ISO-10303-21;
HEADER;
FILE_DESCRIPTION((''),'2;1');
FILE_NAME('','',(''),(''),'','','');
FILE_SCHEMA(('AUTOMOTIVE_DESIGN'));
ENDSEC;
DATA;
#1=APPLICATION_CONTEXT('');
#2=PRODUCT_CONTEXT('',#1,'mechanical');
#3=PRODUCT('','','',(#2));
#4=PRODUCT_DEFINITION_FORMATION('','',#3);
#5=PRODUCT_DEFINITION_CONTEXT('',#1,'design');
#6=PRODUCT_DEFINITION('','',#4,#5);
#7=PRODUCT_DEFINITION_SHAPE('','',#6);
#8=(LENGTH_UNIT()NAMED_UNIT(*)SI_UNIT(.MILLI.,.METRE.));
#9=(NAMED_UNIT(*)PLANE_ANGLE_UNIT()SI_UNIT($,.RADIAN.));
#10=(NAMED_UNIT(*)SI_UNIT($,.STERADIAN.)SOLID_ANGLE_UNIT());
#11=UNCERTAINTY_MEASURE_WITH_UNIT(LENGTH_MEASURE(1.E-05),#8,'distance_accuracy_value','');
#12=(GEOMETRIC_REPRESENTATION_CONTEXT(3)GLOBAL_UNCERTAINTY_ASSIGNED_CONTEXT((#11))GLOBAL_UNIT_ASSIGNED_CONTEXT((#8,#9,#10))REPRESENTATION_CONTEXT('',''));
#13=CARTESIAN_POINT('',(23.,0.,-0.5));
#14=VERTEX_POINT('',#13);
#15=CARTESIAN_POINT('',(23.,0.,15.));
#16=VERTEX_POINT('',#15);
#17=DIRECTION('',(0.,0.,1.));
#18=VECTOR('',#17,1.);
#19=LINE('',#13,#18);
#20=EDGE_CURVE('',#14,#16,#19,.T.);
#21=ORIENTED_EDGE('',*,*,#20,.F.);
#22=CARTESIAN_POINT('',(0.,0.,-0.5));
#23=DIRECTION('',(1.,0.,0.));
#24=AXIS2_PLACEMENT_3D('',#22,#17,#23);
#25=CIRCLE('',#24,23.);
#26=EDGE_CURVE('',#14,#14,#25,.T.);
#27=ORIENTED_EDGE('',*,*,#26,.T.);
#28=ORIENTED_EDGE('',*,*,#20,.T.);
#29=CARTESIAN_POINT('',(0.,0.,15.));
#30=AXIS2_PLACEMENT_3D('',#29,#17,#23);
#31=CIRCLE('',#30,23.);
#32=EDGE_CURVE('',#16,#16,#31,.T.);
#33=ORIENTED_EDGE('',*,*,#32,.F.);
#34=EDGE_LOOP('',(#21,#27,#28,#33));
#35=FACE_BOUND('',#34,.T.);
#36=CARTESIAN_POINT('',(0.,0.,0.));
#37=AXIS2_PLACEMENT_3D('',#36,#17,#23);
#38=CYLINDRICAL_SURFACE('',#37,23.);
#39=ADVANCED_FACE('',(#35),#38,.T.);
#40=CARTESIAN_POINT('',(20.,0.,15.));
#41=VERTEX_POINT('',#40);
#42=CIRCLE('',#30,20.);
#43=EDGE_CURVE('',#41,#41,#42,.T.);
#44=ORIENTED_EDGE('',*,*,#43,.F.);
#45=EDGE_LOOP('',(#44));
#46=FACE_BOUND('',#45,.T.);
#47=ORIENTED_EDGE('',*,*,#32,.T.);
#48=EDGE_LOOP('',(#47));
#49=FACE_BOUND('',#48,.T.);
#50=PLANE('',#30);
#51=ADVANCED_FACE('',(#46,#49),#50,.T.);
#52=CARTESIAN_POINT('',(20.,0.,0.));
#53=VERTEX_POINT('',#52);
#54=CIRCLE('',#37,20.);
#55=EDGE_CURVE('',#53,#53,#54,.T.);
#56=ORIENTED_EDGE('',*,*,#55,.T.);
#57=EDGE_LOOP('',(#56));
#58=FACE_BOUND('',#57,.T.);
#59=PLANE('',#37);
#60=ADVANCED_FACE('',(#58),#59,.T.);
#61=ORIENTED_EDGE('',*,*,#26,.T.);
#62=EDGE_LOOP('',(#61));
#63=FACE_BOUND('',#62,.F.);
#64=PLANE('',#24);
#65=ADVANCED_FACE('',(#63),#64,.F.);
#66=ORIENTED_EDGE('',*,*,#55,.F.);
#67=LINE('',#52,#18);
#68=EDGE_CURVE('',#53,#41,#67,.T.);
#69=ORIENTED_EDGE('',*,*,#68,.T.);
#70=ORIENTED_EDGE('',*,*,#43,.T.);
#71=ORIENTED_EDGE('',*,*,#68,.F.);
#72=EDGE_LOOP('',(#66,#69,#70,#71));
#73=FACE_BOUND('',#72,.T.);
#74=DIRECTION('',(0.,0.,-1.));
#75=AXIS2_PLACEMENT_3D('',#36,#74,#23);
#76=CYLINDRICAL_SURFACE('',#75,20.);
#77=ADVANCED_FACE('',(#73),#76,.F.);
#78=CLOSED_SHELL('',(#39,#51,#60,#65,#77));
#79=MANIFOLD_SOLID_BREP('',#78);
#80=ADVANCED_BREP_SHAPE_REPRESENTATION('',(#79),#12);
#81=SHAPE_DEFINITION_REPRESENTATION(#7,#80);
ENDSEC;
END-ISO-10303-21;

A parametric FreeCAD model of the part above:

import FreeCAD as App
import Part
import Sketcher

doc = App.newDocument("Part")
params = doc.addObject("Spreadsheet::Sheet", "Params")
for row, (alias, value) in enumerate([
    ("sketch1_diameter", "46 mm"),
    ("sketch1_diameter2", "40 mm"),
    ("pad1_length", "15 mm"),
    ("sketch2_diameter", "46 mm"),
    ("pad2_length", "0.5 mm"),
], start=1):
    params.set(f"A{row}", alias)
    params.set(f"B{row}", "=" + value)
    params.setAlias(f"B{row}", alias)

body = doc.addObject("PartDesign::Body", "Body")

sketch1 = body.newObject("Sketcher::SketchObject", "Sketch")
sketch1.AttachmentSupport = (doc.getObject("XY_Plane"), [""])
sketch1.MapMode = "FlatFace"
sketch1.addGeometry([
    Part.Circle(App.Vector(0, 0, 0), App.Vector(0, 0, 1), 23),
    Part.Circle(App.Vector(0, 0, 0), App.Vector(0, 0, 1), 20),
], False)
sketch1.addConstraint([
    Sketcher.Constraint("Coincident", 0, 3, -1, 1),
    Sketcher.Constraint("Coincident", 1, 3, -1, 1),
    Sketcher.Constraint("Diameter", 0, 46.0),
    Sketcher.Constraint("Diameter", 1, 40.0),
])
sketch1.setExpression("Constraints[2]", "Params.sketch1_diameter")
sketch1.setExpression("Constraints[3]", "Params.sketch1_diameter2")
pad1 = body.newObject("PartDesign::Pad", "Pad")
pad1.Profile = sketch1
pad1.setExpression("Length", "Params.pad1_length")

sketch2 = body.newObject("Sketcher::SketchObject", "Sketch001")
sketch2.AttachmentSupport = (doc.getObject("XY_Plane"), [""])
sketch2.MapMode = "FlatFace"
sketch2.addGeometry(Part.Circle(App.Vector(0, 0, 0), App.Vector(0, 0, 1), 23), False)
sketch2.addConstraint([
    Sketcher.Constraint("Coincident", 0, 3, -1, 1),
    Sketcher.Constraint("Diameter", 0, 46.0),
])
sketch2.setExpression("Constraints[1]", "Params.sketch2_diameter")
pad2 = body.newObject("PartDesign::Pad", "Pad001")
pad2.Profile = sketch2
pad2.setExpression("Length", "Params.pad2_length")
pad2.Reversed = True

doc.recompute()
